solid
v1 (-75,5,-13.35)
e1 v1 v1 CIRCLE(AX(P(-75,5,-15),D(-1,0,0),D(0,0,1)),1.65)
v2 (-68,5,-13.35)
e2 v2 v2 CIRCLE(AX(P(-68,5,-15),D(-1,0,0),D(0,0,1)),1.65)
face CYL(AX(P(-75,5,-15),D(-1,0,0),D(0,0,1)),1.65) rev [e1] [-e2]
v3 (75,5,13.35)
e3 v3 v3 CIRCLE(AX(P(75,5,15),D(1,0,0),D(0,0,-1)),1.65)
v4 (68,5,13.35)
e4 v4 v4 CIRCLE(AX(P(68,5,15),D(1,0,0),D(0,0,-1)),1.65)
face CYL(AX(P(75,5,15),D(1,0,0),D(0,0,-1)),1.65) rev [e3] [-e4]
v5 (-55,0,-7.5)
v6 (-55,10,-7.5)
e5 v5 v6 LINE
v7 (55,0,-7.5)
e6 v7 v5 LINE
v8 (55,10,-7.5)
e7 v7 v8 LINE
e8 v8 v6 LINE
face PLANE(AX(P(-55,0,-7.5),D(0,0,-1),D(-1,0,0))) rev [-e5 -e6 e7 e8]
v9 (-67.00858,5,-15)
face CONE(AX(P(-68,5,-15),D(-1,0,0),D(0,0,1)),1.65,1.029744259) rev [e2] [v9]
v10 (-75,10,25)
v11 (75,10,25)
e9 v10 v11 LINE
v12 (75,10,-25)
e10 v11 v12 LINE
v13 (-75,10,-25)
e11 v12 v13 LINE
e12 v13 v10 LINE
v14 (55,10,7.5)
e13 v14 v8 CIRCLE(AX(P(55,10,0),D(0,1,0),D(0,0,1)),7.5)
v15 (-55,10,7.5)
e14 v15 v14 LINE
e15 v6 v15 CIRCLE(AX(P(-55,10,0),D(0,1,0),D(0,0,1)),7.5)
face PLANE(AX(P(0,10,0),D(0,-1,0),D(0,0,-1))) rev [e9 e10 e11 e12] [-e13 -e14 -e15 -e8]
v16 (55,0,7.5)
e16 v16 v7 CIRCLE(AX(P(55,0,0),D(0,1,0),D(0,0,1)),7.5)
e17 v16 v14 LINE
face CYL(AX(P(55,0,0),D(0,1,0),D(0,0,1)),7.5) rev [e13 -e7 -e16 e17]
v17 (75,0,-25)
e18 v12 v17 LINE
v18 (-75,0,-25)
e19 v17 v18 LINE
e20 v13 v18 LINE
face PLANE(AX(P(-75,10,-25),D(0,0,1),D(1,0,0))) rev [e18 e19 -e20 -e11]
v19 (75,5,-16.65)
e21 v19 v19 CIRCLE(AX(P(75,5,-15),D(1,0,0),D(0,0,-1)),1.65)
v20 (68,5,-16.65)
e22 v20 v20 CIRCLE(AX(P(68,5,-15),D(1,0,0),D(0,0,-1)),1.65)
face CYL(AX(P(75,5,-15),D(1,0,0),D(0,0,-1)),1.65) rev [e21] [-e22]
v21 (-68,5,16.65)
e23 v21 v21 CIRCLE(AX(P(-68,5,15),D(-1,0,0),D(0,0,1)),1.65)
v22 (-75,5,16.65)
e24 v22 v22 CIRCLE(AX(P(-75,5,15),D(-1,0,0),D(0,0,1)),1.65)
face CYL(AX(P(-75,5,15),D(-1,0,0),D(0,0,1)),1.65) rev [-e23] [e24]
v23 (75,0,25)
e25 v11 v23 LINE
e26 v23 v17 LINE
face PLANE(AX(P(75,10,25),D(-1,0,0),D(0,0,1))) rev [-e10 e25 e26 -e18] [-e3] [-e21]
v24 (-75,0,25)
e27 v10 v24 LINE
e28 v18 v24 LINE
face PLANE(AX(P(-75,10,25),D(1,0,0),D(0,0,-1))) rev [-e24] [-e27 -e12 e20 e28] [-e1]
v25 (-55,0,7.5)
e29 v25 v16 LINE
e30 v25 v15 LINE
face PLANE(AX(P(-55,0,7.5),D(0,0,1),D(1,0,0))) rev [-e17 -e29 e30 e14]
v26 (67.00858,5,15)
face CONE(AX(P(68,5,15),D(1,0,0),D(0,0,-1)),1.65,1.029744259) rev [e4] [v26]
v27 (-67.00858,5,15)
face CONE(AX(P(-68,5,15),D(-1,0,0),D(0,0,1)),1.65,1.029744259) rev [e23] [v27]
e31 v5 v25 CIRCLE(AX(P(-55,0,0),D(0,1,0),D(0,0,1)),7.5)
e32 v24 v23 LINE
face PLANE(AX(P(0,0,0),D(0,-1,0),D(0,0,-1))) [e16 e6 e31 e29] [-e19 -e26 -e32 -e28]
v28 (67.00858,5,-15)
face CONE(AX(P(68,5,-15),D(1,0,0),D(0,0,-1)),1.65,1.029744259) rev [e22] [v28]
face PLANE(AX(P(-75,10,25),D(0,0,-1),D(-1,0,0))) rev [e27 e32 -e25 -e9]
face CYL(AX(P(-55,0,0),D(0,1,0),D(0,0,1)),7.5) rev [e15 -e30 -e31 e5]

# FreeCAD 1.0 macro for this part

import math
import FreeCAD as App
import Part
import Sketcher

V = App.Vector
Q = App.Units.Quantity

doc = App.newDocument("Part")
body = doc.addObject("PartDesign::Body", "Body")

# Sketch on XZ plane
sketch1 = body.newObject("Sketcher::SketchObject", "Sketch")
sketch1.AttachmentSupport = (doc.getObject("XZ_Plane"), [""])
sketch1.MapMode = "FlatFace"
sketch1.addGeometry([
    Part.LineSegment(V(-75, -25, 0), V(-75, 25, 0)),
    Part.LineSegment(V(-75, 25, 0), V(75, 25, 0)),
    Part.LineSegment(V(75, 25, 0), V(75, -25, 0)),
    Part.LineSegment(V(75, -25, 0), V(-75, -25, 0)),
], False)
sketch1.addConstraint([
    Sketcher.Constraint("Coincident", 0, 2, 1, 1),
    Sketcher.Constraint("Coincident", 1, 2, 2, 1),
    Sketcher.Constraint("Coincident", 2, 2, 3, 1),
    Sketcher.Constraint("Coincident", 3, 2, 0, 1),
    Sketcher.Constraint("Vertical", 0),
    Sketcher.Constraint("Horizontal", 1),
    Sketcher.Constraint("Vertical", 2),
    Sketcher.Constraint("Horizontal", 3),
    Sketcher.Constraint("Symmetric", 0, 2, 2, 2, -1, 1),
    Sketcher.Constraint("DistanceX", 1, 1, 1, 2, Q("150 mm")),
    Sketcher.Constraint("DistanceY", 0, 1, 0, 2, Q("50 mm")),
])
pad1 = body.newObject("PartDesign::Pad", "Pad")
pad1.Profile = sketch1
pad1.Length = 10
pad1.Reversed = True

# Sketch on XZ plane
sketch2 = body.newObject("Sketcher::SketchObject", "Sketch001")
sketch2.AttachmentSupport = (doc.getObject("XZ_Plane"), [""])
sketch2.MapMode = "FlatFace"
sketch2.AttachmentOffset = App.Placement(V(0, 0, -10), App.Rotation())
sketch2.addGeometry([
    Part.LineSegment(V(55, -7.5, 0), V(-55, -7.5, 0)),
    Part.ArcOfCircle(Part.Circle(V(-55, 0, 0), V(0, 0, 1), 7.5), math.radians(90), math.radians(270)),
    Part.LineSegment(V(-55, 7.5, 0), V(55, 7.5, 0)),
    Part.ArcOfCircle(Part.Circle(V(55, 0, 0), V(0, 0, 1), 7.5), math.radians(-90), math.radians(90)),
], False)
sketch2.addConstraint([
    Sketcher.Constraint("Tangent", 0, 2, 1, 2),
    Sketcher.Constraint("Tangent", 1, 1, 2, 1),
    Sketcher.Constraint("Tangent", 2, 2, 3, 2),
    Sketcher.Constraint("Tangent", 3, 1, 0, 1),
    Sketcher.Constraint("Horizontal", 0),
    Sketcher.Constraint("Horizontal", 2),
    Sketcher.Constraint("Symmetric", 1, 3, 3, 3, -1, 1),
    Sketcher.Constraint("Radius", 1, Q("7.5 mm")),
    Sketcher.Constraint("DistanceX", 0, 2, 0, 1, Q("110 mm")),
])
pocket1 = body.newObject("PartDesign::Pocket", "Pocket")
pocket1.Profile = sketch2
pocket1.Length = 10
pocket1.Reversed = True

# Sketch on YZ plane
sketch3 = body.newObject("Sketcher::SketchObject", "Sketch002")
sketch3.AttachmentSupport = (doc.getObject("YZ_Plane"), [""])
sketch3.MapMode = "FlatFace"
sketch3.AttachmentOffset = App.Placement(V(0, 0, -75), App.Rotation())
sketch3.addGeometry([
    Part.Circle(V(5, -15, 0), V(0, 0, 1), 1.65),
    Part.Circle(V(5, 15, 0), V(0, 0, 1), 1.65),
], False)
sketch3.addConstraint([
    Sketcher.Constraint("Equal", 0, 1),
    Sketcher.Constraint("Symmetric", 0, 3, 1, 3, -1),
    Sketcher.Constraint("Diameter", 0, Q("3.3 mm")),
    Sketcher.Constraint("DistanceX", -1, 1, 0, 3, Q("5 mm")),
    Sketcher.Constraint("DistanceY", 0, 3, -1, 1, Q("15 mm")),
])
doc.recompute()
hole = body.newObject("PartDesign::Hole", "Hole")
hole.Profile = sketch3
hole.ThreadType = "None"
hole.Diameter = 3.3
hole.DepthType = "Dimension"
hole.Depth = 7
hole.DrillPoint = "Angled"
hole.DrillPointAngle = 118
hole.Reversed = True

# Sketch on YZ plane
sketch4 = body.newObject("Sketcher::SketchObject", "Sketch003")
sketch4.AttachmentSupport = (doc.getObject("YZ_Plane"), [""])
sketch4.MapMode = "FlatFace"
sketch4.AttachmentOffset = App.Placement(V(0, 0, 75), App.Rotation())
sketch4.addGeometry([
    Part.Circle(V(5, 15, 0), V(0, 0, 1), 1.65),
    Part.Circle(V(5, -15, 0), V(0, 0, 1), 1.65),
], False)
sketch4.addConstraint([
    Sketcher.Constraint("Equal", 0, 1),
    Sketcher.Constraint("Symmetric", 0, 3, 1, 3, -1),
    Sketcher.Constraint("Diameter", 0, Q("3.3 mm")),
    Sketcher.Constraint("DistanceX", -1, 1, 0, 3, Q("5 mm")),
    Sketcher.Constraint("DistanceY", -1, 1, 0, 3, Q("15 mm")),
])
doc.recompute()
hole2 = body.newObject("PartDesign::Hole", "Hole001")
hole2.Profile = sketch4
hole2.ThreadType = "None"
hole2.Diameter = 3.3
hole2.DepthType = "Dimension"
hole2.Depth = 7
hole2.DrillPoint = "Angled"
hole2.DrillPointAngle = 118

# Sketch on YZ plane
sketch5 = body.newObject("Sketcher::SketchObject", "Sketch004")
sketch5.AttachmentSupport = (doc.getObject("YZ_Plane"), [""])
sketch5.MapMode = "FlatFace"
sketch5.addGeometry(Part.Circle(V(37.698562, 89.963562, 0), V(0, 0, 1), 1.65), False)
sketch5.addConstraint([
    Sketcher.Constraint("Diameter", 0, Q("3.3 mm")),
    Sketcher.Constraint("DistanceY", -1, 1, 0, 3, Q("89.963562 mm")),
    Sketcher.Constraint("DistanceX", -1, 1, 0, 3, Q("37.698562 mm")),
])
doc.recompute()
hole3 = body.newObject("PartDesign::Hole", "Hole002")
hole3.Profile = sketch5
hole3.ThreadType = "None"
hole3.Diameter = 3.3
hole3.DepthType = "Dimension"
hole3.Depth = 7
hole3.DrillPoint = "Angled"
hole3.DrillPointAngle = 118

doc.recompute()
